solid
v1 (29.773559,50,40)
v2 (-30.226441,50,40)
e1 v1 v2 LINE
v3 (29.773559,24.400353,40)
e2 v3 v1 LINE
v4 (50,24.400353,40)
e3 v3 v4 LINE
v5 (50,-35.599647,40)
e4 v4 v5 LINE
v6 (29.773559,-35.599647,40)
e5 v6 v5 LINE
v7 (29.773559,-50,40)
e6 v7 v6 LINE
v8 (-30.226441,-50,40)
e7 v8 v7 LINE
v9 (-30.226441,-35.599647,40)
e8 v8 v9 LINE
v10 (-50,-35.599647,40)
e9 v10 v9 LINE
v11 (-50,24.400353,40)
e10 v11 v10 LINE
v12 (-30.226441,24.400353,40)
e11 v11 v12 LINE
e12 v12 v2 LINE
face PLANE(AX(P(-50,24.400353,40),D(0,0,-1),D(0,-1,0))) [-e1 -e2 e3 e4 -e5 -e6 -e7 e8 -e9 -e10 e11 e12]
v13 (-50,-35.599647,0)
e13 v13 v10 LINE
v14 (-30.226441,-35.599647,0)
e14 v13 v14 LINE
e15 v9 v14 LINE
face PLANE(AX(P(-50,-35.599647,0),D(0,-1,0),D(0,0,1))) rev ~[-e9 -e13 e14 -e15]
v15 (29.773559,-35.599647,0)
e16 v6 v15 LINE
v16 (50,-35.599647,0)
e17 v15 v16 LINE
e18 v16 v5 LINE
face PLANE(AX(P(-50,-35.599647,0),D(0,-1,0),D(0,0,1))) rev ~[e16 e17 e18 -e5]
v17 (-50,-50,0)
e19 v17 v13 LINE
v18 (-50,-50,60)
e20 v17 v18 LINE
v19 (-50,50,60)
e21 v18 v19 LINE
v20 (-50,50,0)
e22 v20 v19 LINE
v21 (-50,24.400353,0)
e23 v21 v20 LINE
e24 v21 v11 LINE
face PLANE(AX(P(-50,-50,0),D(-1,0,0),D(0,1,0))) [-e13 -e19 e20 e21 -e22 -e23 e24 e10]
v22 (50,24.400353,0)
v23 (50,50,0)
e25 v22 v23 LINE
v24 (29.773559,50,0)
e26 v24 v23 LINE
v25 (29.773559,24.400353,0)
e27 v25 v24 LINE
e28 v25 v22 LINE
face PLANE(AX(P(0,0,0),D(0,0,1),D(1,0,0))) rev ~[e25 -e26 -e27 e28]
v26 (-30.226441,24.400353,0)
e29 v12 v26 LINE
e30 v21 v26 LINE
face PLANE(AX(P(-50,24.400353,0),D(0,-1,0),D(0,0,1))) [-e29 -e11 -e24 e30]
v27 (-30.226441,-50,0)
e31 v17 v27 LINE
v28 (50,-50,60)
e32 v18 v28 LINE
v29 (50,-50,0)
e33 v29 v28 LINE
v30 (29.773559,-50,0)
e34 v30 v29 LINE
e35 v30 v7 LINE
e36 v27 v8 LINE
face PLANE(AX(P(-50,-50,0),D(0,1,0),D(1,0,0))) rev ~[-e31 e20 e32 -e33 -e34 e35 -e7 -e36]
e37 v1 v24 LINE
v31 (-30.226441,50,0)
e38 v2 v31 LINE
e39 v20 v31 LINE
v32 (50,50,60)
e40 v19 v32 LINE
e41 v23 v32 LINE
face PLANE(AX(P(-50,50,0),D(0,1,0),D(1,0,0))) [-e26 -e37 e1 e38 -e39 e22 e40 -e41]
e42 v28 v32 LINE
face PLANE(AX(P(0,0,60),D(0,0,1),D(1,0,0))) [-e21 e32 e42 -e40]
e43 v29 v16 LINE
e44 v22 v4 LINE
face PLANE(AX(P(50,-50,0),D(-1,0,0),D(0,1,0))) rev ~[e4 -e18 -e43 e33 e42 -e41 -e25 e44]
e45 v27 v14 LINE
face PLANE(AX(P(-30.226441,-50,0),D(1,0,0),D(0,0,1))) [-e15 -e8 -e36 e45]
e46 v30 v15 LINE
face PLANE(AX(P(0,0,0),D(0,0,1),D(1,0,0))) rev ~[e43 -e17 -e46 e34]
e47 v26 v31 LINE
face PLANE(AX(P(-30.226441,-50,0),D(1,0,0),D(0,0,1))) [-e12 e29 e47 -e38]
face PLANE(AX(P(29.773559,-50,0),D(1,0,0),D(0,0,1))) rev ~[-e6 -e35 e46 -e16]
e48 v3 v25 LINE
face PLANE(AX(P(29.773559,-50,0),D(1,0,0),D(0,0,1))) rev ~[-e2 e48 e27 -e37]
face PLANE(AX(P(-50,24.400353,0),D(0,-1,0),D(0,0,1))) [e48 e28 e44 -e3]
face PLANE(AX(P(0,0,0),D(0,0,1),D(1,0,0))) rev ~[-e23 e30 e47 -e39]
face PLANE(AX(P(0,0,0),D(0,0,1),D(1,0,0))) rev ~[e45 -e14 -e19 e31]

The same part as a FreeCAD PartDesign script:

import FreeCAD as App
import Part
import Sketcher
from FreeCAD import Vector
Q = App.Units.Quantity

doc = App.newDocument("Part")
body = doc.addObject("PartDesign::Body", "Body")

sketch1 = body.newObject("Sketcher::SketchObject", "Sketch")
sketch1.AttachmentSupport = (doc.getObject("XY_Plane"), [""])
sketch1.MapMode = "FlatFace"
sketch1.addGeometry([
    Part.LineSegment(Vector(-50, 50, 0), Vector(-50, -50, 0)),
    Part.LineSegment(Vector(-50, -50, 0), Vector(50, -50, 0)),
    Part.LineSegment(Vector(50, -50, 0), Vector(50, 50, 0)),
    Part.LineSegment(Vector(50, 50, 0), Vector(-50, 50, 0)),
], False)
sketch1.addConstraint([
    Sketcher.Constraint("Coincident", 0, 2, 1, 1),
    Sketcher.Constraint("Coincident", 1, 2, 2, 1),
    Sketcher.Constraint("Coincident", 2, 2, 3, 1),
    Sketcher.Constraint("Coincident", 3, 2, 0, 1),
    Sketcher.Constraint("Vertical", 0),
    Sketcher.Constraint("Horizontal", 1),
    Sketcher.Constraint("Vertical", 2),
    Sketcher.Constraint("Horizontal", 3),
    Sketcher.Constraint("Symmetric", 0, 2, 2, 2, -1, 1),
    Sketcher.Constraint("Equal", 3, 0),
    Sketcher.Constraint("DistanceX", 1, 1, 1, 2, Q("100 mm")),
])
pad1 = body.newObject("PartDesign::Pad", "Pad")
pad1.Profile = sketch1
pad1.Length = 100

sketch2 = body.newObject("Sketcher::SketchObject", "Sketch001")
sketch2.AttachmentSupport = (doc.getObject("XY_Plane"), [""])
sketch2.MapMode = "FlatFace"
sketch2.AttachmentOffset = App.Placement(Vector(0, 0, 100), App.Rotation())
sketch2.addGeometry([
    Part.LineSegment(Vector(-50, 50, 0), Vector(-50, -50, 0)),
    Part.LineSegment(Vector(-50, -50, 0), Vector(50, -50, 0)),
    Part.LineSegment(Vector(50, -50, 0), Vector(50, 50, 0)),
    Part.LineSegment(Vector(50, 50, 0), Vector(-50, 50, 0)),
], False)
sketch2.addConstraint([
    Sketcher.Constraint("Coincident", 0, 2, 1, 1),
    Sketcher.Constraint("Coincident", 1, 2, 2, 1),
    Sketcher.Constraint("Coincident", 2, 2, 3, 1),
    Sketcher.Constraint("Coincident", 3, 2, 0, 1),
    Sketcher.Constraint("Vertical", 0),
    Sketcher.Constraint("Horizontal", 1),
    Sketcher.Constraint("Vertical", 2),
    Sketcher.Constraint("Horizontal", 3),
    Sketcher.Constraint("Symmetric", 0, 2, 2, 2, -1, 1),
    Sketcher.Constraint("Equal", 3, 0),
    Sketcher.Constraint("DistanceX", 1, 1, 1, 2, Q("100 mm")),
])
pocket1 = body.newObject("PartDesign::Pocket", "Pocket")
pocket1.Profile = sketch2
pocket1.Length = 40

sketch3 = body.newObject("Sketcher::SketchObject", "Sketch002")
sketch3.AttachmentSupport = (doc.getObject("XZ_Plane"), [""])
sketch3.MapMode = "FlatFace"
sketch3.AttachmentOffset = App.Placement(Vector(0, 0, 50), App.Rotation())
sketch3.addGeometry([
    Part.LineSegment(Vector(-30, 40, 0), Vector(-30, 0, 0)),
    Part.LineSegment(Vector(-30, 0, 0), Vector(30, 0, 0)),
    Part.LineSegment(Vector(30, 0, 0), Vector(30, 40, 0)),
    Part.LineSegment(Vector(30, 40, 0), Vector(-30, 40, 0)),
], False)
sketch3.addConstraint([
    Sketcher.Constraint("Coincident", 0, 2, 1, 1),
    Sketcher.Constraint("Coincident", 1, 2, 2, 1),
    Sketcher.Constraint("Coincident", 2, 2, 3, 1),
    Sketcher.Constraint("Coincident", 3, 2, 0, 1),
    Sketcher.Constraint("Vertical", 0),
    Sketcher.Constraint("Horizontal", 1),
    Sketcher.Constraint("Vertical", 2),
    Sketcher.Constraint("Horizontal", 3),
    Sketcher.Constraint("PointOnObject", 0, 2, -1),
    Sketcher.Constraint("DistanceX", 1, 1, 1, 2, Q("60 mm")),
    Sketcher.Constraint("DistanceY", 0, 2, 0, 1, Q("40 mm")),
    Sketcher.Constraint("DistanceX", 0, 2, -1, 1, Q("30.226441 mm")),
])
pocket2 = body.newObject("PartDesign::Pocket", "Pocket001")
pocket2.Profile = sketch3
pocket2.Length = 176

sketch4 = body.newObject("Sketcher::SketchObject", "Sketch003")
sketch4.AttachmentSupport = (doc.getObject("YZ_Plane"), [""])
sketch4.MapMode = "FlatFace"
sketch4.AttachmentOffset = App.Placement(Vector(0, 0, -50), App.Rotation())
sketch4.addGeometry([
    Part.LineSegment(Vector(24, 40, 0), Vector(24, 0, 0)),
    Part.LineSegment(Vector(24, 0, 0), Vector(-36, 0, 0)),
    Part.LineSegment(Vector(-36, 0, 0), Vector(-36, 40, 0)),
    Part.LineSegment(Vector(-36, 40, 0), Vector(24, 40, 0)),
], False)
sketch4.addConstraint([
    Sketcher.Constraint("Coincident", 0, 2, 1, 1),
    Sketcher.Constraint("Coincident", 1, 2, 2, 1),
    Sketcher.Constraint("Coincident", 2, 2, 3, 1),
    Sketcher.Constraint("Coincident", 3, 2, 0, 1),
    Sketcher.Constraint("Vertical", 0),
    Sketcher.Constraint("Horizontal", 1),
    Sketcher.Constraint("Vertical", 2),
    Sketcher.Constraint("Horizontal", 3),
    Sketcher.Constraint("PointOnObject", 0, 2, -1),
    Sketcher.Constraint("DistanceX", 1, 2, 1, 1, Q("60 mm")),
    Sketcher.Constraint("DistanceY", 0, 2, 0, 1, Q("40 mm")),
    Sketcher.Constraint("DistanceX", -1, 1, 0, 2, Q("24.400353 mm")),
])
pocket3 = body.newObject("PartDesign::Pocket", "Pocket002")
pocket3.Profile = sketch4
pocket3.Length = 223
pocket3.Reversed = True

doc.recompute()
